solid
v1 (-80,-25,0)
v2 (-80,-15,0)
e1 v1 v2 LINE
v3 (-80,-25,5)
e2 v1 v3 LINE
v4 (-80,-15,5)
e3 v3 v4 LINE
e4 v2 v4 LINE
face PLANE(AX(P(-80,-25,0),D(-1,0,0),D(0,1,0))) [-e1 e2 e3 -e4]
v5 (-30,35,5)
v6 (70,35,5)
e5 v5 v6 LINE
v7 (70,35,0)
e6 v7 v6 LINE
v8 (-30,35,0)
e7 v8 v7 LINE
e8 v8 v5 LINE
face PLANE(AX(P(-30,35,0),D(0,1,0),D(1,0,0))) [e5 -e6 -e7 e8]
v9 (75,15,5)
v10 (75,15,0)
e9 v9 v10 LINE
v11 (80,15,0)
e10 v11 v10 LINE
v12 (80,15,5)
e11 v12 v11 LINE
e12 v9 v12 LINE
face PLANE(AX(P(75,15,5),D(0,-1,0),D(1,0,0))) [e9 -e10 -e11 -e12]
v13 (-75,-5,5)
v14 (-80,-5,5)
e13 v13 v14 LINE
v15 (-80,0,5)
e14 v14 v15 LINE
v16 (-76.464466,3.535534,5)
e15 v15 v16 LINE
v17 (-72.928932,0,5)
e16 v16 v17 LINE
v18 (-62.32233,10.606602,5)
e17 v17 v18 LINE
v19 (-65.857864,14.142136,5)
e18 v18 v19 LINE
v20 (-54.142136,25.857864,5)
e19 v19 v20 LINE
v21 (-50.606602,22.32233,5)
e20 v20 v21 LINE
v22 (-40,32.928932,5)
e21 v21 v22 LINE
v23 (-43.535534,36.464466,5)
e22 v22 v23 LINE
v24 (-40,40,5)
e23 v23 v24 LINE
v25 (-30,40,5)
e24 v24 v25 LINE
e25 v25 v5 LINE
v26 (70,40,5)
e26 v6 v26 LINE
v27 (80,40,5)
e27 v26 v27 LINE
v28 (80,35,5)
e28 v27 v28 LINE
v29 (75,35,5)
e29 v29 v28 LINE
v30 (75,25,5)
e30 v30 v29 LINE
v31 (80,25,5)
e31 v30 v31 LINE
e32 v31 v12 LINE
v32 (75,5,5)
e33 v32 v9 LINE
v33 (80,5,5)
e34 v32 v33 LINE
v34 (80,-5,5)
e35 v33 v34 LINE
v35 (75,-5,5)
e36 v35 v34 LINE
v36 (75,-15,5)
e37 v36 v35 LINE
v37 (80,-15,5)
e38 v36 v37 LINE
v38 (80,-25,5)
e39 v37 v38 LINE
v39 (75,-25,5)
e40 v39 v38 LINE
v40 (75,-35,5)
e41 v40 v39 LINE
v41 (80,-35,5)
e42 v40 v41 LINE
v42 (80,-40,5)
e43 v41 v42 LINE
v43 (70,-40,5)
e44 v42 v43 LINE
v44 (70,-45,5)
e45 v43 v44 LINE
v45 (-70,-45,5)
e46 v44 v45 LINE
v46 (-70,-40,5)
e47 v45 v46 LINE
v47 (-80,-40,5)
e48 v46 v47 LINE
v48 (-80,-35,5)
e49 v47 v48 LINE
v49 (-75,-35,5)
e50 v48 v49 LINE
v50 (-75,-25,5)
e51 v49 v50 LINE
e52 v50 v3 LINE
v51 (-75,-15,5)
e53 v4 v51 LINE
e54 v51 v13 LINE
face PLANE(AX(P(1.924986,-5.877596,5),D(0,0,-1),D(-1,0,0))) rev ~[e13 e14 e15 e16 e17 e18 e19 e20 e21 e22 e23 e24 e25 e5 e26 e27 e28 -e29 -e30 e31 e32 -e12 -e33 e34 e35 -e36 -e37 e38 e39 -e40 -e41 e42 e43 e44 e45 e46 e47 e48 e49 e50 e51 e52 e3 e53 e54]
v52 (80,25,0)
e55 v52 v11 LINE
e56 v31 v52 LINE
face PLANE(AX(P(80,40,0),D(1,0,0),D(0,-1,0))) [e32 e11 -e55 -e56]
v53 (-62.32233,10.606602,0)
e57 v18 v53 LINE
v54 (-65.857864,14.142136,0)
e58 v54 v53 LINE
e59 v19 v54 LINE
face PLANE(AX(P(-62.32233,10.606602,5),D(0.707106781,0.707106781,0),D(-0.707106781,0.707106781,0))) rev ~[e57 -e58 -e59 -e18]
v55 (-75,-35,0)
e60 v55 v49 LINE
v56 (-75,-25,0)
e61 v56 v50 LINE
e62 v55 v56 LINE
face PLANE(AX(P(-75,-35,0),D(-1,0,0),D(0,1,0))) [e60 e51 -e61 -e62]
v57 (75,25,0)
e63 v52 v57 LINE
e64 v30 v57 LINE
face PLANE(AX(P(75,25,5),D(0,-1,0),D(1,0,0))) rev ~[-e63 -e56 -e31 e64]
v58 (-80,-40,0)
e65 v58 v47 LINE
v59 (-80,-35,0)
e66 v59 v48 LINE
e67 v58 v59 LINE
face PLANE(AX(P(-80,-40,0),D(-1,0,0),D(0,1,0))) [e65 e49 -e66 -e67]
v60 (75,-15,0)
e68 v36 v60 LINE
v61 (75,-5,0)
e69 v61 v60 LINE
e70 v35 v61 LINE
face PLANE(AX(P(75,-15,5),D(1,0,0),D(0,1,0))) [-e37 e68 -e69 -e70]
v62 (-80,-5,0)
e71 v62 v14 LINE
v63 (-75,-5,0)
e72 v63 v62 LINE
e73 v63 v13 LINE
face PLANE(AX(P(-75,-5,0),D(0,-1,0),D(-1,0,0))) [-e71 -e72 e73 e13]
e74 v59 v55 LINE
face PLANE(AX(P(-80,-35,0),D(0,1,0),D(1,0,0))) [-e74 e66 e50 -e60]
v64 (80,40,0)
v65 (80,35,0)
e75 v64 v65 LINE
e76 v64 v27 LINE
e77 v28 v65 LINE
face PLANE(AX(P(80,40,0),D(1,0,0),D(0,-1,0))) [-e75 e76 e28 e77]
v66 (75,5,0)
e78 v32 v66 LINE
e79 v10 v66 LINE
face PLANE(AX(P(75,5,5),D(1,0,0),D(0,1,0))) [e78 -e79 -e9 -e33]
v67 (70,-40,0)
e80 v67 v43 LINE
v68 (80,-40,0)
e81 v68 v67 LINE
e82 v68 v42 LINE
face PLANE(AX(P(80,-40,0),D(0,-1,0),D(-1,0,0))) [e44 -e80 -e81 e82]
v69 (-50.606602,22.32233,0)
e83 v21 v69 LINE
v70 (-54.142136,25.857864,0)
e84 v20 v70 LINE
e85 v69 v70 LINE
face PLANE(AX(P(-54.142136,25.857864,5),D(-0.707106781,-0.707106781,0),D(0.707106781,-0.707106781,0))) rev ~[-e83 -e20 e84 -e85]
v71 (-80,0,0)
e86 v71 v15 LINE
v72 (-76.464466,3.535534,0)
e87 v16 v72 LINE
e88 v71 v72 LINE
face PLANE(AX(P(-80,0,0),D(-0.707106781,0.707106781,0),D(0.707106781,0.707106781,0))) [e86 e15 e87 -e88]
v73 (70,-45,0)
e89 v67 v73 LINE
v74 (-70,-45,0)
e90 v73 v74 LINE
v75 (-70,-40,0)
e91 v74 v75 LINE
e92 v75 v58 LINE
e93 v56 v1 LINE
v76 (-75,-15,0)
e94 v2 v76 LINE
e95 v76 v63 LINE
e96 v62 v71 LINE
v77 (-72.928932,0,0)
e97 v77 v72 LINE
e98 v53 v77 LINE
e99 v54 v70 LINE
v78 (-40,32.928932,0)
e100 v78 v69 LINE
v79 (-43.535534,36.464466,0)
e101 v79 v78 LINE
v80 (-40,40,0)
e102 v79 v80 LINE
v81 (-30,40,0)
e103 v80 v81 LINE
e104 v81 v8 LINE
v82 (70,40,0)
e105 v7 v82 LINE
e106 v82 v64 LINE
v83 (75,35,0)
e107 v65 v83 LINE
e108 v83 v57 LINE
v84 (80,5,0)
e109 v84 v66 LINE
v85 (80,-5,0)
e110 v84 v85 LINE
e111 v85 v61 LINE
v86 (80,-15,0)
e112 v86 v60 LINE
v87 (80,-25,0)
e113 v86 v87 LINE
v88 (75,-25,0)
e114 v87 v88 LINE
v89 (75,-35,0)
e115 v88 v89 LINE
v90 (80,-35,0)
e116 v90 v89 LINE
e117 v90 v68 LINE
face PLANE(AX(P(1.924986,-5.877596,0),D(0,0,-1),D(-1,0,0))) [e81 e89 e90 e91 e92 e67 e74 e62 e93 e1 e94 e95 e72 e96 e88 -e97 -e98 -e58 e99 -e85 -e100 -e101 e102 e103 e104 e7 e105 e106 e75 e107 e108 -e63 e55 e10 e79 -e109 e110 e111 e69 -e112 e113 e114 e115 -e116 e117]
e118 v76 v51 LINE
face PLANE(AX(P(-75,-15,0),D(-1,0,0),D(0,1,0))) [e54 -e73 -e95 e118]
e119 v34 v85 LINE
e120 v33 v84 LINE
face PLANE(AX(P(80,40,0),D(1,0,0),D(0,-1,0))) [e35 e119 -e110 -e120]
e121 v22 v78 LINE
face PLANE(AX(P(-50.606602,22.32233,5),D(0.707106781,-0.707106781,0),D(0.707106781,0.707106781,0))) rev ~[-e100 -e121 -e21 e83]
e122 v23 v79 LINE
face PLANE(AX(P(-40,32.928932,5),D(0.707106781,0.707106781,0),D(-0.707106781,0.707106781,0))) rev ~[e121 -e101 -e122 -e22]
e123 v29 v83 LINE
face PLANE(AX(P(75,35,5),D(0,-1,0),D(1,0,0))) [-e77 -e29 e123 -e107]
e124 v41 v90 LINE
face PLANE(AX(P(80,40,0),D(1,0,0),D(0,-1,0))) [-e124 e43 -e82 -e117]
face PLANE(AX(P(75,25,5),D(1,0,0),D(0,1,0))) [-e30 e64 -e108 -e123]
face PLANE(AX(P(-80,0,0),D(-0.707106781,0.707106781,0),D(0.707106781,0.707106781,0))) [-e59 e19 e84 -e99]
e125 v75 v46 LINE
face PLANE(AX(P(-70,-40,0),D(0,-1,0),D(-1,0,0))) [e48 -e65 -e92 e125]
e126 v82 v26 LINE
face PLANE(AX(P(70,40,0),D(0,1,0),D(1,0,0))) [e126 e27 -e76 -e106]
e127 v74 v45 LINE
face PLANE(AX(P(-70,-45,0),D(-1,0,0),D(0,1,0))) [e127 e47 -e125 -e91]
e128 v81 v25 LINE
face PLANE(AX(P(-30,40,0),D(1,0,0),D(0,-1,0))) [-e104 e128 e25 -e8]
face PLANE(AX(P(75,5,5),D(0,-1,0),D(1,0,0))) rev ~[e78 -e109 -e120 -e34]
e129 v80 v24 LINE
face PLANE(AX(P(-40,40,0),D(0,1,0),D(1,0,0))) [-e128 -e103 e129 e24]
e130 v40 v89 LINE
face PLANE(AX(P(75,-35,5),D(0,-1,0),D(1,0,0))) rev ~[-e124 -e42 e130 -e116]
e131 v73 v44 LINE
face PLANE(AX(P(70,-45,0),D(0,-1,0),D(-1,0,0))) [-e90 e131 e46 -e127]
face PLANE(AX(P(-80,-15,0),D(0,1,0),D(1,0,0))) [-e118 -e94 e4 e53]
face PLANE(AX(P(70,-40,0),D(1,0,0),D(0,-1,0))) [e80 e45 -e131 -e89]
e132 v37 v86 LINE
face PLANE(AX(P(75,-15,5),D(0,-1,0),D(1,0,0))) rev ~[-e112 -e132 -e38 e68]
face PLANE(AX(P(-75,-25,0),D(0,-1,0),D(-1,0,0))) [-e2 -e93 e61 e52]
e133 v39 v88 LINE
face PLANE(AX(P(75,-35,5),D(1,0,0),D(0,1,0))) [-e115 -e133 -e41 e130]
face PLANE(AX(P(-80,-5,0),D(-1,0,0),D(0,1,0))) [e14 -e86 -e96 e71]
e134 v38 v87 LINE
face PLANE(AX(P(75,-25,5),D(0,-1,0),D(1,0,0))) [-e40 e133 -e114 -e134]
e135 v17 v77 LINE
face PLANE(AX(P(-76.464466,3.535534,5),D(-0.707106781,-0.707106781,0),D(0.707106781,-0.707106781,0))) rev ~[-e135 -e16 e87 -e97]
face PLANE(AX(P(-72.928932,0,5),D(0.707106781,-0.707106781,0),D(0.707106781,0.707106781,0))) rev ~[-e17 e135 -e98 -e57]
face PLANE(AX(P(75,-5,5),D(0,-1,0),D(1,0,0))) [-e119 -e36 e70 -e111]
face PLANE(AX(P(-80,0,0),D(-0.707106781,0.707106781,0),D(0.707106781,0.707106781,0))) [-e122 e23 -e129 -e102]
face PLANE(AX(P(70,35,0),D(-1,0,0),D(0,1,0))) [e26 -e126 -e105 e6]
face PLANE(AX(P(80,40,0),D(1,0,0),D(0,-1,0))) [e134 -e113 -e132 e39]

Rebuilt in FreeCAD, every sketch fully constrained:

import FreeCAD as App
import Part
import Sketcher
Q = App.Units.Quantity

doc = App.newDocument("Part")
body = doc.addObject("PartDesign::Body", "Body")

# Sketch on XY plane
sketch1 = doc.addObject("Sketcher::SketchObject", "Sketch")
body.addObject(sketch1)
sketch1.AttachmentSupport = (doc.XY_Plane, [""])
sketch1.MapMode = "FlatFace"
sketch1.addGeometry([
    Part.LineSegment(App.Vector(-40, 40, 0), App.Vector(-80, 0, 0)),  # 0
    Part.LineSegment(App.Vector(-80, 0, 0), App.Vector(-80, -5, 0)),  # 1
    Part.LineSegment(App.Vector(-80, -5, 0), App.Vector(-75, -5, 0)),  # 2
    Part.LineSegment(App.Vector(-75, -5, 0), App.Vector(-75, -15, 0)),  # 3
    Part.LineSegment(App.Vector(-75, -15, 0), App.Vector(-80, -15, 0)),  # 4
    Part.LineSegment(App.Vector(-80, -15, 0), App.Vector(-80, -25, 0)),  # 5
    Part.LineSegment(App.Vector(-80, -25, 0), App.Vector(-75, -25, 0)),  # 6
    Part.LineSegment(App.Vector(-75, -25, 0), App.Vector(-75, -35, 0)),  # 7
    Part.LineSegment(App.Vector(-75, -35, 0), App.Vector(-80, -35, 0)),  # 8
    Part.LineSegment(App.Vector(-80, -35, 0), App.Vector(-80, -40, 0)),  # 9
    Part.LineSegment(App.Vector(-80, -40, 0), App.Vector(-70, -40, 0)),  # 10
    Part.LineSegment(App.Vector(-70, -40, 0), App.Vector(-70, -45, 0)),  # 11
    Part.LineSegment(App.Vector(-70, -45, 0), App.Vector(70, -45, 0)),  # 12
    Part.LineSegment(App.Vector(70, -45, 0), App.Vector(70, -40, 0)),  # 13
    Part.LineSegment(App.Vector(70, -40, 0), App.Vector(80, -40, 0)),  # 14
    Part.LineSegment(App.Vector(80, -40, 0), App.Vector(80, 40, 0)),  # 15
    Part.LineSegment(App.Vector(80, 40, 0), App.Vector(70, 40, 0)),  # 16
    Part.LineSegment(App.Vector(70, 40, 0), App.Vector(70, 35, 0)),  # 17
    Part.LineSegment(App.Vector(70, 35, 0), App.Vector(-30, 35, 0)),  # 18
    Part.LineSegment(App.Vector(-30, 35, 0), App.Vector(-30, 40, 0)),  # 19
    Part.LineSegment(App.Vector(-30, 40, 0), App.Vector(-40, 40, 0)),  # 20
], False)
sketch1.addConstraint([
    Sketcher.Constraint("Coincident", 0, 2, 1, 1),
    Sketcher.Constraint("Coincident", 1, 2, 2, 1),
    Sketcher.Constraint("Coincident", 2, 2, 3, 1),
    Sketcher.Constraint("Coincident", 3, 2, 4, 1),
    Sketcher.Constraint("Coincident", 4, 2, 5, 1),
    Sketcher.Constraint("Coincident", 5, 2, 6, 1),
    Sketcher.Constraint("Coincident", 6, 2, 7, 1),
    Sketcher.Constraint("Coincident", 7, 2, 8, 1),
    Sketcher.Constraint("Coincident", 8, 2, 9, 1),
    Sketcher.Constraint("Coincident", 9, 2, 10, 1),
    Sketcher.Constraint("Coincident", 10, 2, 11, 1),
    Sketcher.Constraint("Coincident", 11, 2, 12, 1),
    Sketcher.Constraint("Coincident", 12, 2, 13, 1),
    Sketcher.Constraint("Coincident", 13, 2, 14, 1),
    Sketcher.Constraint("Coincident", 14, 2, 15, 1),
    Sketcher.Constraint("Coincident", 15, 2, 16, 1),
    Sketcher.Constraint("Coincident", 16, 2, 17, 1),
    Sketcher.Constraint("Coincident", 17, 2, 18, 1),
    Sketcher.Constraint("Coincident", 18, 2, 19, 1),
    Sketcher.Constraint("Coincident", 19, 2, 20, 1),
    Sketcher.Constraint("Coincident", 20, 2, 0, 1),
    Sketcher.Constraint("Vertical", 1),
    Sketcher.Constraint("Horizontal", 2),
    Sketcher.Constraint("Vertical", 3),
    Sketcher.Constraint("Horizontal", 4),
    Sketcher.Constraint("Vertical", 5),
    Sketcher.Constraint("Horizontal", 6),
    Sketcher.Constraint("Vertical", 7),
    Sketcher.Constraint("Horizontal", 8),
    Sketcher.Constraint("Vertical", 9),
    Sketcher.Constraint("Horizontal", 10),
    Sketcher.Constraint("Vertical", 11),
    Sketcher.Constraint("Horizontal", 12),
    Sketcher.Constraint("Vertical", 13),
    Sketcher.Constraint("Horizontal", 14),
    Sketcher.Constraint("Vertical", 15),
    Sketcher.Constraint("Horizontal", 16),
    Sketcher.Constraint("Vertical", 17),
    Sketcher.Constraint("Horizontal", 18),
    Sketcher.Constraint("Vertical", 19),
    Sketcher.Constraint("Horizontal", 20),
    Sketcher.Constraint("Symmetric", 9, 2, 15, 2, -1, 1),
    Sketcher.Constraint("Symmetric", 10, 2, 13, 2, -2),
    Sketcher.Constraint("PointOnObject", 0, 2, -1),
    Sketcher.Constraint("Horizontal", 16, 2, 19, 2),
    Sketcher.Constraint("Vertical", 1, 2, 4, 2),
    Sketcher.Constraint("Vertical", 3, 2, 6, 2),
    Sketcher.Constraint("Vertical", 5, 2, 8, 2),
    Sketcher.Constraint("Vertical", 13, 2, 16, 2),
    Sketcher.Constraint("Equal", 16, 20),
    Sketcher.Constraint("Equal", 8, 1),
    Sketcher.Constraint("Equal", 20, 3),
    Sketcher.Constraint("Equal", 3, 5),
    Sketcher.Constraint("Equal", 5, 7),
    Sketcher.Constraint("Equal", 1, 9),
    Sketcher.Constraint("Equal", 9, 11),
    Sketcher.Constraint("Equal", 13, 17),
    Sketcher.Constraint("DistanceX", 2, 1, 2, 2, 5.0),
    Sketcher.Constraint("DistanceX", 10, 1, 10, 2, 10.0),
    Sketcher.Constraint("DistanceX", 12, 1, 12, 2, 140.0),
    Sketcher.Constraint("DistanceX", 18, 2, 18, 1, 100.0),
])
pad1 = doc.addObject("PartDesign::Pad", "Pad")
body.addObject(pad1)
pad1.Profile = sketch1
pad1.Length = 5

# Sketch on XY plane
sketch2 = doc.addObject("Sketcher::SketchObject", "Sketch001")
body.addObject(sketch2)
sketch2.AttachmentSupport = (doc.XY_Plane, [""])
sketch2.MapMode = "FlatFace"
sketch2.AttachmentOffset = App.Placement(App.Vector(0, 0, 5), App.Rotation())
sketch2.addGeometry([
    Part.LineSegment(App.Vector(75, -25, 0), App.Vector(75, -35, 0)),  # 0
    Part.LineSegment(App.Vector(75, -35, 0), App.Vector(80, -35, 0)),  # 1
    Part.LineSegment(App.Vector(80, -35, 0), App.Vector(80, -25, 0)),  # 2
    Part.LineSegment(App.Vector(80, -25, 0), App.Vector(75, -25, 0)),  # 3
    Part.LineSegment(App.Vector(75, -5, 0), App.Vector(75, -15, 0)),  # 4
    Part.LineSegment(App.Vector(75, -15, 0), App.Vector(80, -15, 0)),  # 5
    Part.LineSegment(App.Vector(80, -15, 0), App.Vector(80, -5, 0)),  # 6
    Part.LineSegment(App.Vector(80, -5, 0), App.Vector(75, -5, 0)),  # 7
    Part.LineSegment(App.Vector(75, 15, 0), App.Vector(75, 5, 0)),  # 8
    Part.LineSegment(App.Vector(75, 5, 0), App.Vector(80, 5, 0)),  # 9
    Part.LineSegment(App.Vector(80, 5, 0), App.Vector(80, 15, 0)),  # 10
    Part.LineSegment(App.Vector(80, 15, 0), App.Vector(75, 15, 0)),  # 11
    Part.LineSegment(App.Vector(75, 35, 0), App.Vector(75, 25, 0)),  # 12
    Part.LineSegment(App.Vector(75, 25, 0), App.Vector(80, 25, 0)),  # 13
    Part.LineSegment(App.Vector(80, 25, 0), App.Vector(80, 35, 0)),  # 14
    Part.LineSegment(App.Vector(80, 35, 0), App.Vector(75, 35, 0)),  # 15
], False)
sketch2.addConstraint([
    Sketcher.Constraint("Coincident", 0, 2, 1, 1),
    Sketcher.Constraint("Coincident", 1, 2, 2, 1),
    Sketcher.Constraint("Coincident", 2, 2, 3, 1),
    Sketcher.Constraint("Coincident", 3, 2, 0, 1),
    Sketcher.Constraint("Coincident", 4, 2, 5, 1),
    Sketcher.Constraint("Coincident", 5, 2, 6, 1),
    Sketcher.Constraint("Coincident", 6, 2, 7, 1),
    Sketcher.Constraint("Coincident", 7, 2, 4, 1),
    Sketcher.Constraint("Coincident", 8, 2, 9, 1),
    Sketcher.Constraint("Coincident", 9, 2, 10, 1),
    Sketcher.Constraint("Coincident", 10, 2, 11, 1),
    Sketcher.Constraint("Coincident", 11, 2, 8, 1),
    Sketcher.Constraint("Coincident", 12, 2, 13, 1),
    Sketcher.Constraint("Coincident", 13, 2, 14, 1),
    Sketcher.Constraint("Coincident", 14, 2, 15, 1),
    Sketcher.Constraint("Coincident", 15, 2, 12, 1),
    Sketcher.Constraint("Vertical", 0),
    Sketcher.Constraint("Horizontal", 1),
    Sketcher.Constraint("Vertical", 2),
    Sketcher.Constraint("Horizontal", 3),
    Sketcher.Constraint("Vertical", 4),
    Sketcher.Constraint("Horizontal", 5),
    Sketcher.Constraint("Vertical", 6),
    Sketcher.Constraint("Horizontal", 7),
    Sketcher.Constraint("Vertical", 8),
    Sketcher.Constraint("Horizontal", 9),
    Sketcher.Constraint("Vertical", 10),
    Sketcher.Constraint("Horizontal", 11),
    Sketcher.Constraint("Vertical", 12),
    Sketcher.Constraint("Horizontal", 13),
    Sketcher.Constraint("Vertical", 14),
    Sketcher.Constraint("Horizontal", 15),
    Sketcher.Constraint("Symmetric", 7, 2, 8, 2, -1),
    Sketcher.Constraint("Symmetric", 5, 2, 10, 2, -1),
    Sketcher.Constraint("Symmetric", 3, 2, 12, 2, -1),
    Sketcher.Constraint("Symmetric", 1, 2, 14, 2, -1),
    Sketcher.Constraint("Vertical", 3, 2, 4, 2),
    Sketcher.Constraint("Vertical", 2, 2, 5, 2),
    Sketcher.Constraint("Equal", 2, 4),
    Sketcher.Constraint("DistanceX", 1, 1, 1, 2, 5.0),
    Sketcher.Constraint("DistanceY", 0, 2, 0, 1, 10.0),
    Sketcher.Constraint("DistanceX", -1, 1, 0, 2, 75.0),
    Sketcher.Constraint("DistanceY", 0, 2, -1, 1, 35.0),
    Sketcher.Constraint("DistanceY", 4, 2, -1, 1, 15.0),
])
pocket1 = doc.addObject("PartDesign::Pocket", "Pocket")
body.addObject(pocket1)
pocket1.Profile = sketch2
pocket1.Length = 10

# Sketch on XY plane
sketch3 = doc.addObject("Sketcher::SketchObject", "Sketch002")
body.addObject(sketch3)
sketch3.AttachmentSupport = (doc.XY_Plane, [""])
sketch3.MapMode = "FlatFace"
sketch3.AttachmentOffset = App.Placement(App.Vector(0, 0, 5), App.Rotation())
sketch3.addGeometry([
    Part.LineSegment(App.Vector(-44, 36, 0), App.Vector(-54, 26, 0)),  # 0
    Part.LineSegment(App.Vector(-54, 26, 0), App.Vector(-51, 22, 0)),  # 1
    Part.LineSegment(App.Vector(-51, 22, 0), App.Vector(-40, 33, 0)),  # 2
    Part.LineSegment(App.Vector(-40, 33, 0), App.Vector(-44, 36, 0)),  # 3
    Part.LineSegment(App.Vector(-66, 14, 0), App.Vector(-76, 4, 0)),  # 4
    Part.LineSegment(App.Vector(-76, 4, 0), App.Vector(-73, 0, 0)),  # 5
    Part.LineSegment(App.Vector(-73, 0, 0), App.Vector(-62, 11, 0)),  # 6
    Part.LineSegment(App.Vector(-62, 11, 0), App.Vector(-66, 14, 0)),  # 7
], False)
sketch3.addConstraint([
    Sketcher.Constraint("Coincident", 0, 2, 1, 1),
    Sketcher.Constraint("Coincident", 1, 2, 2, 1),
    Sketcher.Constraint("Coincident", 2, 2, 3, 1),
    Sketcher.Constraint("Coincident", 3, 2, 0, 1),
    Sketcher.Constraint("Coincident", 4, 2, 5, 1),
    Sketcher.Constraint("Coincident", 5, 2, 6, 1),
    Sketcher.Constraint("Coincident", 6, 2, 7, 1),
    Sketcher.Constraint("Coincident", 7, 2, 4, 1),
    Sketcher.Constraint("PointOnObject", 5, 2, -1),
    Sketcher.Constraint("Perpendicular", 0, 1),
    Sketcher.Constraint("Perpendicular", 1, 2),
    Sketcher.Constraint("Perpendicular", 2, 3),
    Sketcher.Constraint("Perpendicular", 3, 4),
    Sketcher.Constraint("Perpendicular", 4, 5),
    Sketcher.Constraint("Perpendicular", 5, 6),
    Sketcher.Constraint("Perpendicular", 6, 7),
    Sketcher.Constraint("Equal", 2, 4),
    Sketcher.Constraint("Equal", 3, 5),
    Sketcher.Constraint("Angle", 0, Q("-135 deg")),
    Sketcher.Constraint("Distance", 0, 15.0),
    Sketcher.Constraint("Distance", 1, 5.0),
    Sketcher.Constraint("DistanceX", 2, 2, -1, 1, 40.0),
    Sketcher.Constraint("DistanceY", 4, 2, 2, 2, 29.393398),
    Sketcher.Constraint("DistanceX", 5, 2, 3, 2, 29.393398),
])
pocket2 = doc.addObject("PartDesign::Pocket", "Pocket001")
body.addObject(pocket2)
pocket2.Profile = sketch3
pocket2.Length = 10

doc.recompute()
